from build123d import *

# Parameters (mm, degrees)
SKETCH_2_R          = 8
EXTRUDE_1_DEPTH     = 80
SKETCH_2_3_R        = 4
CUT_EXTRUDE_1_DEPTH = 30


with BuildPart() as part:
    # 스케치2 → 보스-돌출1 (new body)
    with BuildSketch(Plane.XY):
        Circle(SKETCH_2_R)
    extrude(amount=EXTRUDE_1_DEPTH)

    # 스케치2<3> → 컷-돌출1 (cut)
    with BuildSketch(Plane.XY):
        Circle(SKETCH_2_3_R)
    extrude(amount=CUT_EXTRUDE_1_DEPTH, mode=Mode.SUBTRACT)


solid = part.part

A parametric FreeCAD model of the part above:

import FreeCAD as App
import Part
import Sketcher
from FreeCAD import Vector
Q = App.Units.Quantity

doc = App.newDocument("Part")
body = doc.addObject("PartDesign::Body", "Body")

# Sketch on XY plane
sketch1 = body.newObject("Sketcher::SketchObject", "Sketch")
sketch1.AttachmentSupport = (doc.getObject("XY_Plane"), [""])
sketch1.MapMode = "FlatFace"
sketch1.addGeometry(Part.Circle(Vector(0, 0, 0), Vector(0, 0, 1), 8), False)
sketch1.addConstraint(Sketcher.Constraint("Coincident", 0, 3, -1, 1))
sketch1.addConstraint(Sketcher.Constraint("Diameter", 0, Q("16 mm")))
pad1 = body.newObject("PartDesign::Pad", "Pad")
pad1.Profile = sketch1
pad1.Length = 80

# Sketch on XY plane
sketch2 = body.newObject("Sketcher::SketchObject", "Sketch001")
sketch2.AttachmentSupport = (doc.getObject("XY_Plane"), [""])
sketch2.MapMode = "FlatFace"
sketch2.addGeometry(Part.Circle(Vector(0, 0, 0), Vector(0, 0, 1), 4), False)
sketch2.addConstraint(Sketcher.Constraint("Coincident", 0, 3, -1, 1))
sketch2.addConstraint(Sketcher.Constraint("Diameter", 0, Q("8 mm")))
pocket1 = body.newObject("PartDesign::Pocket", "Pocket")
pocket1.Profile = sketch2
pocket1.Length = 30
pocket1.Reversed = True

doc.recompute()
